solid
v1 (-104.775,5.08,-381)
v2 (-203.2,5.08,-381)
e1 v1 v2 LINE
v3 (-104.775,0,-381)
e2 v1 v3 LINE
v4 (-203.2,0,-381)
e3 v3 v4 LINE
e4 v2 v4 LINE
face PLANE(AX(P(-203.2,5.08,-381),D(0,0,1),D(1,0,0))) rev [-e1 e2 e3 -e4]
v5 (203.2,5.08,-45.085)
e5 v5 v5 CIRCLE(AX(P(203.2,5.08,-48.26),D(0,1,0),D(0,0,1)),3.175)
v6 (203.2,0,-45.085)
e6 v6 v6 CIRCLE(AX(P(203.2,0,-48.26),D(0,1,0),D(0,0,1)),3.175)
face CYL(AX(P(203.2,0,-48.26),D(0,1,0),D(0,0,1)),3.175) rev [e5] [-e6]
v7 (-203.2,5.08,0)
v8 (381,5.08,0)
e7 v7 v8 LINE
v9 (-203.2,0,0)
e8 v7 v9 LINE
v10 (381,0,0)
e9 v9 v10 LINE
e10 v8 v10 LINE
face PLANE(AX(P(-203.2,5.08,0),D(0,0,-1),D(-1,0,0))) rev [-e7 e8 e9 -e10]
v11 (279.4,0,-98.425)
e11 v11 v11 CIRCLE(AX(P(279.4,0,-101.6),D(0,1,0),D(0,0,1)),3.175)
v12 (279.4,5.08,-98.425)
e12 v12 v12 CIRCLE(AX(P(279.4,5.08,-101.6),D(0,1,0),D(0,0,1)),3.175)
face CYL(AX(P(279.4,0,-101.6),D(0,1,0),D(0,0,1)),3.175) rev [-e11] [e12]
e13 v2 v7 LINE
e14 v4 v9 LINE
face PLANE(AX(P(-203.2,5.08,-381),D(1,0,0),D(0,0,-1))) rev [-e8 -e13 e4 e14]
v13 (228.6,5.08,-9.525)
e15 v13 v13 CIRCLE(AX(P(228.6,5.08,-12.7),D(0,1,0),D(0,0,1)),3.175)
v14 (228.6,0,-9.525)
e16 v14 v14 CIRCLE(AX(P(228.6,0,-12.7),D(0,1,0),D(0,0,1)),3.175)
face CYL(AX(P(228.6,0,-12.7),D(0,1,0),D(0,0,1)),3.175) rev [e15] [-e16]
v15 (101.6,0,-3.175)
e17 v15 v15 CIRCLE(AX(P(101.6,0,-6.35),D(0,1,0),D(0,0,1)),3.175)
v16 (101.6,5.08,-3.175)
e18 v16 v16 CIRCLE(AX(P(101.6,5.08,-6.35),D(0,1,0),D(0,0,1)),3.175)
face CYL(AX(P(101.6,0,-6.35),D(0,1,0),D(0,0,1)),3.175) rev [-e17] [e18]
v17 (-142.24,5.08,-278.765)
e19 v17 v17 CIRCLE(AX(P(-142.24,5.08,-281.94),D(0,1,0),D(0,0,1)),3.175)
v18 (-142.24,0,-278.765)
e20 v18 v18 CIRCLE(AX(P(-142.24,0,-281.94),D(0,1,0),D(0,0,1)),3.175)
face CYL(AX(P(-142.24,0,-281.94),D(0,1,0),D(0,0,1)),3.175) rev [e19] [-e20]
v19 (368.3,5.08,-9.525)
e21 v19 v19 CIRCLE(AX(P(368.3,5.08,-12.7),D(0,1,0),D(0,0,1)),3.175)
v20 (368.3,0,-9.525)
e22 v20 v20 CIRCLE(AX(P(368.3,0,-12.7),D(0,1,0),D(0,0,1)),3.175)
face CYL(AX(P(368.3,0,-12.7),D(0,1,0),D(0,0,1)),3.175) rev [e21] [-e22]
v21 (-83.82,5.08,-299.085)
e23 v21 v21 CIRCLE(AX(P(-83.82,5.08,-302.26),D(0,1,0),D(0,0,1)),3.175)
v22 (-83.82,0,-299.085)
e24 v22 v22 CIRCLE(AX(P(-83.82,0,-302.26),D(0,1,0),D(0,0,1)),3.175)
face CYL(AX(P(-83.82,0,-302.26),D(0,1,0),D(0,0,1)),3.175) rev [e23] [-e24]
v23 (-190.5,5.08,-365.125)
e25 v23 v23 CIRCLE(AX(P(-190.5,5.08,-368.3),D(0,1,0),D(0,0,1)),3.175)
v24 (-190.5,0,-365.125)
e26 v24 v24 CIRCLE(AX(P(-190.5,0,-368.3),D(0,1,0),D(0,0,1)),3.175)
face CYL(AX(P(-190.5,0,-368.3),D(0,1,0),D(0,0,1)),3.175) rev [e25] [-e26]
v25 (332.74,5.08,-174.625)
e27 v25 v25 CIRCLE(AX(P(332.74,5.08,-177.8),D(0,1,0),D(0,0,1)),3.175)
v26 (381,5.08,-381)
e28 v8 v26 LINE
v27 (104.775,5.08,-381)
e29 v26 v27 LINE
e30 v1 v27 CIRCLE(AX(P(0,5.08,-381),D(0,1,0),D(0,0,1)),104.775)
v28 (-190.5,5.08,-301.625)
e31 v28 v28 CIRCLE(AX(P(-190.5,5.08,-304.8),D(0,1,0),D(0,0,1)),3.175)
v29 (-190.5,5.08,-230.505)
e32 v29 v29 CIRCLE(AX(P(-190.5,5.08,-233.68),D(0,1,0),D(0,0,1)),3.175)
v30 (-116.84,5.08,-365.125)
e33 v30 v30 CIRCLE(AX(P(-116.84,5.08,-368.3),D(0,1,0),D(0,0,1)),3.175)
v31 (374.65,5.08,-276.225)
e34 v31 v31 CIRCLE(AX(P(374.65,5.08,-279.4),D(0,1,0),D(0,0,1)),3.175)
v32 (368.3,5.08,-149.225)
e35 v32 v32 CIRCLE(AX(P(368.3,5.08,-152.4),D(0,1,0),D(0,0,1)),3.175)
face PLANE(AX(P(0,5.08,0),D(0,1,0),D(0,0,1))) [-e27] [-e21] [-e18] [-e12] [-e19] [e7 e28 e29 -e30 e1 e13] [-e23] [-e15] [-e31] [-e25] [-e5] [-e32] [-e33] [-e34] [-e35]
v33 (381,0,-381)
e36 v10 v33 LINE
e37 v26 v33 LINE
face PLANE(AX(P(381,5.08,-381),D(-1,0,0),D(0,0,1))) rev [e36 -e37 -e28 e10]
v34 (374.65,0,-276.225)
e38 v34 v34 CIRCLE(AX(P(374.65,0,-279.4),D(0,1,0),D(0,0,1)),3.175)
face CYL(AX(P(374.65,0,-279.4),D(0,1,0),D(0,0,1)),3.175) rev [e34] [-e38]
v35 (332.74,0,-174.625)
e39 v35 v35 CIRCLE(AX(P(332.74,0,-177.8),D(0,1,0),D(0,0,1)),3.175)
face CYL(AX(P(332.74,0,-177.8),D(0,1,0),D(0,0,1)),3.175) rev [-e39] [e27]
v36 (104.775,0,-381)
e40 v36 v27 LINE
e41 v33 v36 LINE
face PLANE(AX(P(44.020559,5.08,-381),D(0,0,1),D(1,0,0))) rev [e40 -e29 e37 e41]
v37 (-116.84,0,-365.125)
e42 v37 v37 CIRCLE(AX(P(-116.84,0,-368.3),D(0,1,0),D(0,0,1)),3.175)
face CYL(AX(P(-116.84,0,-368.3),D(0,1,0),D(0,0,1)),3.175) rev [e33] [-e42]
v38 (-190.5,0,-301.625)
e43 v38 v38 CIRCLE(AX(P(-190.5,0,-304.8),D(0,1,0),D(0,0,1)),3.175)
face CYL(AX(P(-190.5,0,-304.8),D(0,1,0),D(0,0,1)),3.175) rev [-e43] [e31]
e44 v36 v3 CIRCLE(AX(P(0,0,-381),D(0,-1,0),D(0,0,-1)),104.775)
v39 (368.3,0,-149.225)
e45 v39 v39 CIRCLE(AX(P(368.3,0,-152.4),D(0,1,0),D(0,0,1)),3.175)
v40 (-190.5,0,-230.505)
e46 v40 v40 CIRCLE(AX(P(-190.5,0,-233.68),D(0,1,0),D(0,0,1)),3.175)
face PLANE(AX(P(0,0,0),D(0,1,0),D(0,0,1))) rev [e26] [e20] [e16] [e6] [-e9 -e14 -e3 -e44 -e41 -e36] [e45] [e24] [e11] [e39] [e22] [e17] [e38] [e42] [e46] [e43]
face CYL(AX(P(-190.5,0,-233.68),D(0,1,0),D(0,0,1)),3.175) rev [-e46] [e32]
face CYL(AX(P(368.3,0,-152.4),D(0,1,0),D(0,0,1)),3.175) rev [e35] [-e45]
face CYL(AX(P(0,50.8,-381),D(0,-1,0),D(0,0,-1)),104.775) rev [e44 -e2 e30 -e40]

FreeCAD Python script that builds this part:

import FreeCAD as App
import Part
import Sketcher
from FreeCAD import Vector
Q = App.Units.Quantity


def add_polygon(sketch, points):
    """Adds a closed chain of lines whose ends are joined by coincident constraints."""
    first, n = sketch.GeometryCount, len(points)
    for a, b in zip(points, points[1:] + points[:1]):
        sketch.addGeometry(Part.LineSegment(App.Vector(*a, 0), App.Vector(*b, 0)), False)
    for i in range(n):
        sketch.addConstraint(Sketcher.Constraint("Coincident", first + i, 2, first + (i + 1) % n, 1))

doc = App.newDocument("Part")
body = doc.addObject("PartDesign::Body", "Body")

sketch1 = doc.addObject("Sketcher::SketchObject", "Sketch")
body.addObject(sketch1)
sketch1.AttachmentSupport = (doc.XZ_Plane, [""])
sketch1.MapMode = "FlatFace"
add_polygon(sketch1, [(-44, -381), (-203, -381), (-203, 0), (381, 0), (381, -381), (44, -381), (44, -424), (-44, -424)])
sketch1.addConstraint([
    Sketcher.Constraint("Horizontal", 0),
    Sketcher.Constraint("Vertical", 1),
    Sketcher.Constraint("Horizontal", 2),
    Sketcher.Constraint("Vertical", 3),
    Sketcher.Constraint("Horizontal", 4),
    Sketcher.Constraint("Vertical", 5),
    Sketcher.Constraint("Horizontal", 6),
    Sketcher.Constraint("Vertical", 7),
    Sketcher.Constraint("PointOnObject", 1, 2, -1),
    Sketcher.Constraint("Horizontal", 0, 2, 3, 2),
    Sketcher.Constraint("DistanceX", 2, 1, 2, 2, Q("23 in")),
    Sketcher.Constraint("DistanceY", 1, 1, 1, 2, Q("15 in")),
    Sketcher.Constraint("DistanceX", 0, 2, -1, 1, Q("8 in")),
    Sketcher.Constraint("DistanceX", 0, 2, 0, 1, Q("158.776971 mm")),
    Sketcher.Constraint("DistanceX", 4, 2, 4, 1, Q("336.979441 mm")),
    Sketcher.Constraint("DistanceY", 5, 2, 5, 1, Q("42.747509 mm")),
])
pad1 = doc.addObject("PartDesign::Pad", "Pad")
body.addObject(pad1)
pad1.Profile = sketch1
pad1.Length = Q("0.2 in")
pad1.Reversed = True

sketch2 = doc.addObject("Sketcher::SketchObject", "Sketch001")
body.addObject(sketch2)
sketch2.AttachmentSupport = (doc.XZ_Plane, [""])
sketch2.MapMode = "FlatFace"
sketch2.addGeometry(Part.Circle(Vector(0, -381, 0), Vector(0, 0, 1), 105), False)
sketch2.addConstraint([
    Sketcher.Constraint("PointOnObject", 0, 3, -2),
    Sketcher.Constraint("Diameter", 0, Q("8.25 in")),
    Sketcher.Constraint("DistanceY", 0, 3, -1, 1, Q("15 in")),
])
pocket1 = doc.addObject("PartDesign::Pocket", "Pocket")
body.addObject(pocket1)
pocket1.Profile = sketch2
pocket1.Length = Q("2 in")

sketch3 = doc.addObject("Sketcher::SketchObject", "Sketch002")
body.addObject(sketch3)
sketch3.AttachmentSupport = (doc.XZ_Plane, [""])
sketch3.MapMode = "FlatFace"
sketch3.AttachmentOffset = App.Placement(Vector(0, 0, -0.2 * 25.4), App.Rotation())
sketch3.addGeometry([
    Part.Circle(Vector(332.7, -177.8, 0), Vector(0, 0, 1), 3.2),
    Part.Circle(Vector(101.6, -6.3, 0), Vector(0, 0, 1), 3.2),
    Part.Circle(Vector(203.2, -48.3, 0), Vector(0, 0, 1), 3.2),
    Part.Circle(Vector(279.4, -101.6, 0), Vector(0, 0, 1), 3.2),
    Part.Circle(Vector(368.3, -152.4, 0), Vector(0, 0, 1), 3.2),
    Part.Circle(Vector(374.6, -279.4, 0), Vector(0, 0, 1), 3.2),
    Part.Circle(Vector(368.3, -12.7, 0), Vector(0, 0, 1), 3.2),
    Part.Circle(Vector(228.6, -12.7, 0), Vector(0, 0, 1), 3.2),
], False)
sketch3.addConstraint([
    Sketcher.Constraint("Equal", 0, 1),
    Sketcher.Constraint("Equal", 1, 2),
    Sketcher.Constraint("Equal", 2, 3),
    Sketcher.Constraint("Equal", 3, 4),
    Sketcher.Constraint("Equal", 4, 5),
    Sketcher.Constraint("Equal", 5, 6),
    Sketcher.Constraint("Equal", 6, 7),
    Sketcher.Constraint("Horizontal", 6, 3, 7, 3),
    Sketcher.Constraint("Vertical", 4, 3, 6, 3),
    Sketcher.Constraint("Diameter", 0, Q("0.25 in")),
    Sketcher.Constraint("DistanceY", 0, 3, -1, 1, Q("7 in")),
    Sketcher.Constraint("DistanceX", -1, 1, 1, 3, Q("4 in")),
    Sketcher.Constraint("DistanceX", -1, 1, 2, 3, Q("8 in")),
    Sketcher.Constraint("DistanceX", -1, 1, 3, 3, Q("11 in")),
    Sketcher.Constraint("DistanceY", 3, 3, -1, 1, Q("4 in")),
    Sketcher.Constraint("DistanceY", 4, 3, -1, 1, Q("6 in")),
    Sketcher.Constraint("DistanceY", 5, 3, -1, 1, Q("11 in")),
    Sketcher.Constraint("DistanceX", -1, 1, 7, 3, Q("9 in")),
    Sketcher.Constraint("DistanceX", -1, 1, 0, 3, Q("13.1 in")),
    Sketcher.Constraint("DistanceY", 2, 3, -1, 1, Q("1.9 in")),
    Sketcher.Constraint("DistanceX", -1, 1, 4, 3, Q("14.5 in")),
    Sketcher.Constraint("DistanceY", 6, 3, -1, 1, Q("0.5 in")),
    Sketcher.Constraint("DistanceY", 1, 3, -1, 1, Q("0.25 in")),
    Sketcher.Constraint("DistanceX", -1, 1, 5, 3, Q("14.75 in")),
])
pocket2 = doc.addObject("PartDesign::Pocket", "Pocket001")
body.addObject(pocket2)
pocket2.Profile = sketch3
pocket2.Length = Q("0.2 in")
pocket2.Reversed = True

sketch4 = doc.addObject("Sketcher::SketchObject", "Sketch003")
body.addObject(sketch4)
sketch4.AttachmentSupport = (doc.XZ_Plane, [""])
sketch4.MapMode = "FlatFace"
sketch4.AttachmentOffset = App.Placement(Vector(0, 0, -0.2 * 25.4), App.Rotation())
sketch4.addGeometry([
    Part.Circle(Vector(-190.5, -368.3, 0), Vector(0, 0, 1), 3.2),
    Part.Circle(Vector(-116.8, -368.3, 0), Vector(0, 0, 1), 3.2),
    Part.Circle(Vector(-83.8, -302.3, 0), Vector(0, 0, 1), 3.2),
    Part.Circle(Vector(-142.2, -281.9, 0), Vector(0, 0, 1), 3.2),
    Part.Circle(Vector(-190.5, -233.7, 0), Vector(0, 0, 1), 3.2),
    Part.Circle(Vector(-190.5, -304.8, 0), Vector(0, 0, 1), 3.2),
], False)
sketch4.addConstraint([
    Sketcher.Constraint("Equal", 0, 1),
    Sketcher.Constraint("Equal", 1, 2),
    Sketcher.Constraint("Equal", 2, 3),
    Sketcher.Constraint("Equal", 3, 4),
    Sketcher.Constraint("Equal", 4, 5),
    Sketcher.Constraint("Horizontal", 0, 3, 1, 3),
    Sketcher.Constraint("Vertical", 0, 3, 4, 3),
    Sketcher.Constraint("Vertical", 4, 3, 5, 3),
    Sketcher.Constraint("Diameter", 0, Q("0.25 in")),
    Sketcher.Constraint("DistanceY", 5, 3, -1, 1, Q("12 in")),
    Sketcher.Constraint("DistanceX", 3, 3, 1, 3, Q("1 in")),
    Sketcher.Constraint("DistanceX", 0, 3, -1, 1, Q("7.5 in")),
    Sketcher.Constraint("DistanceY", 0, 3, -1, 1, Q("14.5 in")),
    Sketcher.Constraint("DistanceX", 1, 3, -1, 1, Q("4.6 in")),
    Sketcher.Constraint("DistanceX", 2, 3, -1, 1, Q("3.3 in")),
    Sketcher.Constraint("DistanceY", 2, 3, -1, 1, Q("11.9 in")),
    Sketcher.Constraint("DistanceY", 3, 3, -1, 1, Q("11.1 in")),
    Sketcher.Constraint("DistanceY", 4, 3, -1, 1, Q("9.2 in")),
])
pocket3 = doc.addObject("PartDesign::Pocket", "Pocket002")
body.addObject(pocket3)
pocket3.Profile = sketch4
pocket3.Length = Q("0.2 in")
pocket3.Reversed = True

doc.recompute()
